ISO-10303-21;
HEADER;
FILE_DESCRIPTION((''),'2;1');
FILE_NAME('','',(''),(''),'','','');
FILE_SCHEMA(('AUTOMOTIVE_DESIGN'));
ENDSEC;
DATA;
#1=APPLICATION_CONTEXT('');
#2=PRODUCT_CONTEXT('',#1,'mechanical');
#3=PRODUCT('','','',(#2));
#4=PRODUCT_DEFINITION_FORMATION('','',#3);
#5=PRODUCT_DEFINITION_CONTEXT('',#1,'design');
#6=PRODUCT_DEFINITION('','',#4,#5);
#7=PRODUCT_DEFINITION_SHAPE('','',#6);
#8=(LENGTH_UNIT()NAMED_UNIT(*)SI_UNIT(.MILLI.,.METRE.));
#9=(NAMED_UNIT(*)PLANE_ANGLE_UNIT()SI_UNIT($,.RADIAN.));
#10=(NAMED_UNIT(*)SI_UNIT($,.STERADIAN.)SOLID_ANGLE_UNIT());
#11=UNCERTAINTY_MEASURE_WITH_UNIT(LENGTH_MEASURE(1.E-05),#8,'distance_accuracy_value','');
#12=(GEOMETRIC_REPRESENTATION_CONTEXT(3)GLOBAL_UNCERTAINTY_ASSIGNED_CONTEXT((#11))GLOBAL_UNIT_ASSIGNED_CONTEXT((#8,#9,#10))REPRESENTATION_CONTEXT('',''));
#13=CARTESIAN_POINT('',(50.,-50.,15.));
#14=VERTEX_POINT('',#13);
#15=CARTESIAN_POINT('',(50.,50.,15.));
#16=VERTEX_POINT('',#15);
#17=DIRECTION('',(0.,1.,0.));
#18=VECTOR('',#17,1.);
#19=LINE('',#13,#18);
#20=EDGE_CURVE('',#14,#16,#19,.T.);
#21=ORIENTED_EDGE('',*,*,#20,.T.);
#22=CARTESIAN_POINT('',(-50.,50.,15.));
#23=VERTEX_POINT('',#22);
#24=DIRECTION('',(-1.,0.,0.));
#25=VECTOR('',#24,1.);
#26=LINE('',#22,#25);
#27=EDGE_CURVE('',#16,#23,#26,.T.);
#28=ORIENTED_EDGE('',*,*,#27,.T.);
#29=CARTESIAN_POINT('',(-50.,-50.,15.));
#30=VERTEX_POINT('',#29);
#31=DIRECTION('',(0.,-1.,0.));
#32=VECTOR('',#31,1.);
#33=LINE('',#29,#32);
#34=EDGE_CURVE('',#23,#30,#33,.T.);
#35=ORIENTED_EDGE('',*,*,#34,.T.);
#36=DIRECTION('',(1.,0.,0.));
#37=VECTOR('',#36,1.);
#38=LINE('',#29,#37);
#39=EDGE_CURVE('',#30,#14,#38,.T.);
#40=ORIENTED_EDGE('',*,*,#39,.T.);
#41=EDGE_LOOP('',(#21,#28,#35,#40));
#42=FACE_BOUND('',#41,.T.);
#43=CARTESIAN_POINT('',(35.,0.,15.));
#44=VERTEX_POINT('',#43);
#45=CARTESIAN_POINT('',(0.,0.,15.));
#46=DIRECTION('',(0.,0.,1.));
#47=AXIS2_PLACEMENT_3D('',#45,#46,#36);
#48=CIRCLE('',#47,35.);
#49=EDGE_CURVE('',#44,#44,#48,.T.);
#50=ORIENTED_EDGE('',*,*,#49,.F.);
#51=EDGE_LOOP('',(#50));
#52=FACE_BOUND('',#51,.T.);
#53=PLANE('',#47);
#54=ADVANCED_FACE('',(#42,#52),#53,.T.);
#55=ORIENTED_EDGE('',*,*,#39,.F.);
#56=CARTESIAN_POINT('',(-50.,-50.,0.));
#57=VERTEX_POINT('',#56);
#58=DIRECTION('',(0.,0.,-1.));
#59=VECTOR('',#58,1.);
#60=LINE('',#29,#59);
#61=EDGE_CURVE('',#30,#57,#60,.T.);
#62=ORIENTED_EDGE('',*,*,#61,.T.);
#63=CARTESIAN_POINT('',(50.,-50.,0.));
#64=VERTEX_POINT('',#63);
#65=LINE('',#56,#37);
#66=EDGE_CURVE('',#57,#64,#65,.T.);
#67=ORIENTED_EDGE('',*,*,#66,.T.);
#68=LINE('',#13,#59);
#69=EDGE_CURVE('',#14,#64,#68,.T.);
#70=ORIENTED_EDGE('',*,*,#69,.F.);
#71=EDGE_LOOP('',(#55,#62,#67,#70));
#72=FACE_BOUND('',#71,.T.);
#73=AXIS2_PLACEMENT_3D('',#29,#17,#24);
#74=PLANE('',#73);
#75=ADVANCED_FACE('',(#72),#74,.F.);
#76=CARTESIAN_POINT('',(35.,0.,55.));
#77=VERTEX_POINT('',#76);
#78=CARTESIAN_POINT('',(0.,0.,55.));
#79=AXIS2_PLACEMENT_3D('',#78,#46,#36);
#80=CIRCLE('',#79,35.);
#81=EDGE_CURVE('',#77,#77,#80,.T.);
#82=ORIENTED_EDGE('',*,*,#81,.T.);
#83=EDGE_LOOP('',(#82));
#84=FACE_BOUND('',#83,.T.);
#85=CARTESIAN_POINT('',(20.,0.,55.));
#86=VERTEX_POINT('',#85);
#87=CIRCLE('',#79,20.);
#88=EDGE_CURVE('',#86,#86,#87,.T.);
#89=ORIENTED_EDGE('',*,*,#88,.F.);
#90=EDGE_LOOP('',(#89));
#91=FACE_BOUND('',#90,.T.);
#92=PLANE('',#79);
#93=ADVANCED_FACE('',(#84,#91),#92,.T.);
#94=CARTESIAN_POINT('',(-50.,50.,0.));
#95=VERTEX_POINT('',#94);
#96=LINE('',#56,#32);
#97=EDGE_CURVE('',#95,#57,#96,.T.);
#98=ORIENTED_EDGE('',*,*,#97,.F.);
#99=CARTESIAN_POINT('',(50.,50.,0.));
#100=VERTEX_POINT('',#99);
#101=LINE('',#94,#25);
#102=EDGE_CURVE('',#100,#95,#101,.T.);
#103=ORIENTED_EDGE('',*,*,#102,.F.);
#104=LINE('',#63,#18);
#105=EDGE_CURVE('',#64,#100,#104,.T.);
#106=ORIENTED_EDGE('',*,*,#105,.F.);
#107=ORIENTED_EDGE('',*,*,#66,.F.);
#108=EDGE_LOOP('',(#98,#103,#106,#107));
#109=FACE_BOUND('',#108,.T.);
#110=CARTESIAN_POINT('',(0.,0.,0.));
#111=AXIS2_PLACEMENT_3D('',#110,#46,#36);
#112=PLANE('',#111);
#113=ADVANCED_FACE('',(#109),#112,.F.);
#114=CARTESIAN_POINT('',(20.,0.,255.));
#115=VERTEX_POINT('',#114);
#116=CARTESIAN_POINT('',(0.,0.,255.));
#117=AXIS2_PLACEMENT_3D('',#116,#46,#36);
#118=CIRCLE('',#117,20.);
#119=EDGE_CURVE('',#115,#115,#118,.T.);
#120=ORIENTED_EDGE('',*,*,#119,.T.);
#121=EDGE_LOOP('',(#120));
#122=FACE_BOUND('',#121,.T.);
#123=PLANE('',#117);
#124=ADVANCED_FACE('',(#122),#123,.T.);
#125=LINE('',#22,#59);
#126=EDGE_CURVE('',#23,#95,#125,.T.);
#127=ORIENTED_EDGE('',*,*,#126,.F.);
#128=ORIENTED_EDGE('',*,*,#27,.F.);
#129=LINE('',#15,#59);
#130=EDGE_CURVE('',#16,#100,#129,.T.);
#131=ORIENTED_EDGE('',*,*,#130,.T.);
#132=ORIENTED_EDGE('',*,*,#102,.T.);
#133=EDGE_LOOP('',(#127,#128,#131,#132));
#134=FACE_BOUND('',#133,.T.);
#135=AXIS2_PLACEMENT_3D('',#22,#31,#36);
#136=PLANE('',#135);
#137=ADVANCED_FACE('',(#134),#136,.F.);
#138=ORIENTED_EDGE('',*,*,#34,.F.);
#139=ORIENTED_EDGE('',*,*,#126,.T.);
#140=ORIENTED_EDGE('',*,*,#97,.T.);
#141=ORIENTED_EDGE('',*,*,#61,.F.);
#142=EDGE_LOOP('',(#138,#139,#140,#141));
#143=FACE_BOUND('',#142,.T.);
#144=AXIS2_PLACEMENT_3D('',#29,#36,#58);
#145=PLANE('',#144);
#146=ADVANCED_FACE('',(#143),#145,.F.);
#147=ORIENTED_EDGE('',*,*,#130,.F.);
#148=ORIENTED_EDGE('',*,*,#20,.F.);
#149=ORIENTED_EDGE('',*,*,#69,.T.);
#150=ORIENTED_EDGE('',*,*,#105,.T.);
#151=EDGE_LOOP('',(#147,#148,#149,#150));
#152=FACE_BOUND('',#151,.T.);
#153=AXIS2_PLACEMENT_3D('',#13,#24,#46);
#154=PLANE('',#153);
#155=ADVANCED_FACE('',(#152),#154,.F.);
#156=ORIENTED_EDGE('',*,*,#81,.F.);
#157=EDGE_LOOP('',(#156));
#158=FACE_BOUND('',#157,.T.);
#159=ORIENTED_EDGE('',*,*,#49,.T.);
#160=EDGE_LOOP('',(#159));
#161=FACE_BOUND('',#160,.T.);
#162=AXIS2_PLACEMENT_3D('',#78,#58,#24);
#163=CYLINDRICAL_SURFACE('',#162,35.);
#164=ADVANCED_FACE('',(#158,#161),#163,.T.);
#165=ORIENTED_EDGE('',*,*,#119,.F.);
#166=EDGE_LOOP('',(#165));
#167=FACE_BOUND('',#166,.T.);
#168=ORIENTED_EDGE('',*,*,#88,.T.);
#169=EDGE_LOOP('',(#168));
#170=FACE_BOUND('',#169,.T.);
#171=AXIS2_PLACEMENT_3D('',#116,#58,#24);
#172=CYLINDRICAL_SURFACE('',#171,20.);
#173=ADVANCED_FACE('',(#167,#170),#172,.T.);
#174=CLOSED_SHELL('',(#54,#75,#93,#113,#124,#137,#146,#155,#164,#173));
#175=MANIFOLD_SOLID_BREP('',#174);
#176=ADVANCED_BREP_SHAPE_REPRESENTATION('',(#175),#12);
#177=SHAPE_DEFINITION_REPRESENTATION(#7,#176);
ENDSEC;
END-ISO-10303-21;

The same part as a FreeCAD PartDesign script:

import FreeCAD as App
import Part
import Sketcher

V = App.Vector

doc = App.newDocument("Part")
body = doc.addObject("PartDesign::Body", "Body")

# Sketch on XY plane
sketch1 = body.newObject("Sketcher::SketchObject", "Sketch")
sketch1.AttachmentSupport = (doc.getObject("XY_Plane"), [""])
sketch1.MapMode = "FlatFace"
sketch1.addGeometry([
    Part.LineSegment(V(-50, -50, 0), V(50, -50, 0)),
    Part.LineSegment(V(50, -50, 0), V(50, 50, 0)),
    Part.LineSegment(V(50, 50, 0), V(-50, 50, 0)),
    Part.LineSegment(V(-50, 50, 0), V(-50, -50, 0)),
], False)
sketch1.addConstraint([
    Sketcher.Constraint("Coincident", 0, 2, 1, 1),
    Sketcher.Constraint("Coincident", 1, 2, 2, 1),
    Sketcher.Constraint("Coincident", 2, 2, 3, 1),
    Sketcher.Constraint("Coincident", 3, 2, 0, 1),
    Sketcher.Constraint("Horizontal", 0),
    Sketcher.Constraint("Vertical", 1),
    Sketcher.Constraint("Horizontal", 2),
    Sketcher.Constraint("Vertical", 3),
    Sketcher.Constraint("Symmetric", 0, 2, 2, 2, -1, 1),
    Sketcher.Constraint("Equal", 2, 1),
    Sketcher.Constraint("DistanceX", 0, 1, 0, 2, 100.0),
])
pad1 = body.newObject("PartDesign::Pad", "Pad")
pad1.Profile = sketch1
pad1.Length = 15

# Sketch on XY plane
sketch2 = body.newObject("Sketcher::SketchObject", "Sketch001")
sketch2.AttachmentSupport = (doc.getObject("XY_Plane"), [""])
sketch2.MapMode = "FlatFace"
sketch2.AttachmentOffset = App.Placement(V(0, 0, 15), App.Rotation())
sketch2.addGeometry(Part.Circle(V(0, 0, 0), V(0, 0, 1), 35), False)
sketch2.addConstraint([
    Sketcher.Constraint("Coincident", 0, 3, -1, 1),
    Sketcher.Constraint("Diameter", 0, 70.0),
])
pad2 = body.newObject("PartDesign::Pad", "Pad001")
pad2.Profile = sketch2
pad2.Length = 40

# Sketch on XY plane
sketch3 = body.newObject("Sketcher::SketchObject", "Sketch002")
sketch3.AttachmentSupport = (doc.getObject("XY_Plane"), [""])
sketch3.MapMode = "FlatFace"
sketch3.AttachmentOffset = App.Placement(V(0, 0, 55), App.Rotation())
sketch3.addGeometry(Part.Circle(V(0, 0, 0), V(0, 0, 1), 20), False)
sketch3.addConstraint([
    Sketcher.Constraint("Coincident", 0, 3, -1, 1),
    Sketcher.Constraint("Diameter", 0, 40.0),
])
pad3 = body.newObject("PartDesign::Pad", "Pad002")
pad3.Profile = sketch3
pad3.Length = 200

doc.recompute()
